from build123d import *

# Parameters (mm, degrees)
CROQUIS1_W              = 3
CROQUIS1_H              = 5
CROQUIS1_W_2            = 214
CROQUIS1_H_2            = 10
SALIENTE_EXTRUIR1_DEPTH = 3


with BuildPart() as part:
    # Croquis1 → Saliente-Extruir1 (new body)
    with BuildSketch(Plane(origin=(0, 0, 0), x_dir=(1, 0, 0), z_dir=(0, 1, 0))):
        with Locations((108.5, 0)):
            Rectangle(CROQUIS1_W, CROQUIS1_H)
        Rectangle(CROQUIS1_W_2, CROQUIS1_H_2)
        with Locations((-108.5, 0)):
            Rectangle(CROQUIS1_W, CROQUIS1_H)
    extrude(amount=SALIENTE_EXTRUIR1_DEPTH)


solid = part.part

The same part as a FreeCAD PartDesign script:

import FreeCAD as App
import Part
import Sketcher
from FreeCAD import Vector

doc = App.newDocument("Part")
body = doc.addObject("PartDesign::Body", "Body")

# Sketch on XZ plane
sketch1 = doc.addObject("Sketcher::SketchObject", "Sketch")
body.addObject(sketch1)
sketch1.AttachmentSupport = (doc.XZ_Plane, [""])
sketch1.MapMode = "FlatFace"
sketch1.addGeometry([
    Part.LineSegment(Vector(107, 2.5, 0), Vector(110, 2.5, 0)),  # 0
    Part.LineSegment(Vector(110, 2.5, 0), Vector(110, -2.5, 0)),  # 1
    Part.LineSegment(Vector(110, -2.5, 0), Vector(107, -2.5, 0)),  # 2
    Part.LineSegment(Vector(107, -2.5, 0), Vector(107, -5, 0)),  # 3
    Part.LineSegment(Vector(107, -5, 0), Vector(-107, -5, 0)),  # 4
    Part.LineSegment(Vector(-107, -5, 0), Vector(-107, -2.5, 0)),  # 5
    Part.LineSegment(Vector(-107, -2.5, 0), Vector(-110, -2.5, 0)),  # 6
    Part.LineSegment(Vector(-110, -2.5, 0), Vector(-110, 2.5, 0)),  # 7
    Part.LineSegment(Vector(-110, 2.5, 0), Vector(-107, 2.5, 0)),  # 8
    Part.LineSegment(Vector(-107, 2.5, 0), Vector(-107, 5, 0)),  # 9
    Part.LineSegment(Vector(-107, 5, 0), Vector(107, 5, 0)),  # 10
    Part.LineSegment(Vector(107, 5, 0), Vector(107, 2.5, 0)),  # 11
], False)
sketch1.addConstraint([
    Sketcher.Constraint("Coincident", 0, 2, 1, 1),
    Sketcher.Constraint("Coincident", 1, 2, 2, 1),
    Sketcher.Constraint("Coincident", 2, 2, 3, 1),
    Sketcher.Constraint("Coincident", 3, 2, 4, 1),
    Sketcher.Constraint("Coincident", 4, 2, 5, 1),
    Sketcher.Constraint("Coincident", 5, 2, 6, 1),
    Sketcher.Constraint("Coincident", 6, 2, 7, 1),
    Sketcher.Constraint("Coincident", 7, 2, 8, 1),
    Sketcher.Constraint("Coincident", 8, 2, 9, 1),
    Sketcher.Constraint("Coincident", 9, 2, 10, 1),
    Sketcher.Constraint("Coincident", 10, 2, 11, 1),
    Sketcher.Constraint("Coincident", 11, 2, 0, 1),
    Sketcher.Constraint("Horizontal", 0),
    Sketcher.Constraint("Vertical", 1),
    Sketcher.Constraint("Horizontal", 2),
    Sketcher.Constraint("Vertical", 3),
    Sketcher.Constraint("Horizontal", 4),
    Sketcher.Constraint("Vertical", 5),
    Sketcher.Constraint("Horizontal", 6),
    Sketcher.Constraint("Vertical", 7),
    Sketcher.Constraint("Horizontal", 8),
    Sketcher.Constraint("Vertical", 9),
    Sketcher.Constraint("Horizontal", 10),
    Sketcher.Constraint("Vertical", 11),
    Sketcher.Constraint("Symmetric", 0, 2, 6, 2, -1, 1),
    Sketcher.Constraint("Symmetric", 2, 2, 8, 2, -1, 1),
    Sketcher.Constraint("Symmetric", 4, 2, 10, 2, -1, 1),
    Sketcher.Constraint("Symmetric", 2, 2, 5, 2, -2),
    Sketcher.Constraint("DistanceX", 0, 1, 0, 2, 3.0),
    Sketcher.Constraint("DistanceX", 4, 2, 4, 1, 214.0),
    Sketcher.Constraint("DistanceY", 1, 2, 1, 1, 5.0),
    Sketcher.Constraint("DistanceY", 3, 2, 3, 1, 2.5),
])
pad1 = doc.addObject("PartDesign::Pad", "Pad")
body.addObject(pad1)
pad1.Profile = sketch1
pad1.Length = 3
pad1.Reversed = True

doc.recompute()
